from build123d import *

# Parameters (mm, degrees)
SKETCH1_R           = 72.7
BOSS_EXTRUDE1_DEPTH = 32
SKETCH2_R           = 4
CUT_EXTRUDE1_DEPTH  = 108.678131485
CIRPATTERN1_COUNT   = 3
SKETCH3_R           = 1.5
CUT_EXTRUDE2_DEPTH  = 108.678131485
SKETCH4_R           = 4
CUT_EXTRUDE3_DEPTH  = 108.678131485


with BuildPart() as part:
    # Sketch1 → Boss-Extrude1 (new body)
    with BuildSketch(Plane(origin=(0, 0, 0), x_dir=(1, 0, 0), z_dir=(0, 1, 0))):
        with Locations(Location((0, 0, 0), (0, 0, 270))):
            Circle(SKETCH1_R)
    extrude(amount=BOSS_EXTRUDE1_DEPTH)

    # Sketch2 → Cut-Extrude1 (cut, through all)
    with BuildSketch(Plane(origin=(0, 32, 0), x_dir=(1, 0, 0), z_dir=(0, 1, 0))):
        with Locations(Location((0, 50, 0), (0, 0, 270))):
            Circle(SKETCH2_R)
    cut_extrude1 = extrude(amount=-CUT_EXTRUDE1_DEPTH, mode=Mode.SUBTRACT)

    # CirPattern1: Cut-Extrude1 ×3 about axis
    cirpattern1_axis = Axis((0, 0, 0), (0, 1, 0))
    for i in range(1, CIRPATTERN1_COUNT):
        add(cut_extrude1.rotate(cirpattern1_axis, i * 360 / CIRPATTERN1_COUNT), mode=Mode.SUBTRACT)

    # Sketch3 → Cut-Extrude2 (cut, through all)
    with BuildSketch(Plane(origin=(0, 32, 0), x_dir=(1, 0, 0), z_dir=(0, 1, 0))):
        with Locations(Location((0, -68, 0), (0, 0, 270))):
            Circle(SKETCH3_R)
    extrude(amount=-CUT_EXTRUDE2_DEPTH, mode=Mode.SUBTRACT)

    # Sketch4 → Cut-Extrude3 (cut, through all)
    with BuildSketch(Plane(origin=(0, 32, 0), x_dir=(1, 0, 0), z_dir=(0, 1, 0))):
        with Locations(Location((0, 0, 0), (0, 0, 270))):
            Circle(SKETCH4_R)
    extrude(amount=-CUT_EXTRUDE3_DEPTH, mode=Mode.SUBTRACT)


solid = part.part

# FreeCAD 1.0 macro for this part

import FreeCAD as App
import Part
import Sketcher

V = App.Vector

doc = App.newDocument("Part")
body = doc.addObject("PartDesign::Body", "Body")

sketch1 = body.newObject("Sketcher::SketchObject", "Sketch")
sketch1.AttachmentSupport = (doc.getObject("XZ_Plane"), [""])
sketch1.MapMode = "FlatFace"
sketch1.addGeometry(Part.Circle(V(0, 0, 0), V(0, 0, 1), 72.7), False)
sketch1.addConstraint(Sketcher.Constraint("Coincident", 0, 3, -1, 1))
sketch1.addConstraint(Sketcher.Constraint("Diameter", 0, 145.4))
pad1 = body.newObject("PartDesign::Pad", "Pad")
pad1.Profile = sketch1
pad1.Length = 32
pad1.Reversed = True

sketch2 = body.newObject("Sketcher::SketchObject", "Sketch001")
sketch2.AttachmentSupport = (doc.getObject("XZ_Plane"), [""])
sketch2.MapMode = "FlatFace"
sketch2.AttachmentOffset = App.Placement(V(0, 0, -32), App.Rotation())
sketch2.addGeometry(Part.Circle(V(0, -50, 0), V(0, 0, 1), 4), False)
sketch2.addConstraint(Sketcher.Constraint("PointOnObject", 0, 3, -2))
sketch2.addConstraint(Sketcher.Constraint("Diameter", 0, 8.0))
sketch2.addConstraint(Sketcher.Constraint("DistanceY", 0, 3, -1, 1, 50.0))
pocket1 = body.newObject("PartDesign::Pocket", "Pocket")
pocket1.Profile = sketch2
pocket1.Type = "ThroughAll"
pocket1.Reversed = True
doc.recompute()

polarpattern = body.newObject("PartDesign::PolarPattern", "PolarPattern")
polarpattern.Originals = [pocket1]
polarpattern.Axis = (doc.getObject("Y_Axis"), [""])
polarpattern.Angle = 360
polarpattern.Occurrences = 3
body.Tip = polarpattern

sketch3 = body.newObject("Sketcher::SketchObject", "Sketch002")
sketch3.AttachmentSupport = (doc.getObject("XZ_Plane"), [""])
sketch3.MapMode = "FlatFace"
sketch3.AttachmentOffset = App.Placement(V(0, 0, -32), App.Rotation())
sketch3.addGeometry(Part.Circle(V(0, 68, 0), V(0, 0, 1), 1.5), False)
sketch3.addConstraint(Sketcher.Constraint("PointOnObject", 0, 3, -2))
sketch3.addConstraint(Sketcher.Constraint("Diameter", 0, 3.0))
sketch3.addConstraint(Sketcher.Constraint("DistanceY", -1, 1, 0, 3, 68.0))
pocket2 = body.newObject("PartDesign::Pocket", "Pocket001")
pocket2.Profile = sketch3
pocket2.Type = "ThroughAll"
pocket2.Reversed = True

sketch4 = body.newObject("Sketcher::SketchObject", "Sketch003")
sketch4.AttachmentSupport = (doc.getObject("XZ_Plane"), [""])
sketch4.MapMode = "FlatFace"
sketch4.AttachmentOffset = App.Placement(V(0, 0, -32), App.Rotation())
sketch4.addGeometry(Part.Circle(V(0, 0, 0), V(0, 0, 1), 4), False)
sketch4.addConstraint(Sketcher.Constraint("Coincident", 0, 3, -1, 1))
sketch4.addConstraint(Sketcher.Constraint("Diameter", 0, 8.0))
pocket3 = body.newObject("PartDesign::Pocket", "Pocket002")
pocket3.Profile = sketch4
pocket3.Type = "ThroughAll"
pocket3.Reversed = True

doc.recompute()
